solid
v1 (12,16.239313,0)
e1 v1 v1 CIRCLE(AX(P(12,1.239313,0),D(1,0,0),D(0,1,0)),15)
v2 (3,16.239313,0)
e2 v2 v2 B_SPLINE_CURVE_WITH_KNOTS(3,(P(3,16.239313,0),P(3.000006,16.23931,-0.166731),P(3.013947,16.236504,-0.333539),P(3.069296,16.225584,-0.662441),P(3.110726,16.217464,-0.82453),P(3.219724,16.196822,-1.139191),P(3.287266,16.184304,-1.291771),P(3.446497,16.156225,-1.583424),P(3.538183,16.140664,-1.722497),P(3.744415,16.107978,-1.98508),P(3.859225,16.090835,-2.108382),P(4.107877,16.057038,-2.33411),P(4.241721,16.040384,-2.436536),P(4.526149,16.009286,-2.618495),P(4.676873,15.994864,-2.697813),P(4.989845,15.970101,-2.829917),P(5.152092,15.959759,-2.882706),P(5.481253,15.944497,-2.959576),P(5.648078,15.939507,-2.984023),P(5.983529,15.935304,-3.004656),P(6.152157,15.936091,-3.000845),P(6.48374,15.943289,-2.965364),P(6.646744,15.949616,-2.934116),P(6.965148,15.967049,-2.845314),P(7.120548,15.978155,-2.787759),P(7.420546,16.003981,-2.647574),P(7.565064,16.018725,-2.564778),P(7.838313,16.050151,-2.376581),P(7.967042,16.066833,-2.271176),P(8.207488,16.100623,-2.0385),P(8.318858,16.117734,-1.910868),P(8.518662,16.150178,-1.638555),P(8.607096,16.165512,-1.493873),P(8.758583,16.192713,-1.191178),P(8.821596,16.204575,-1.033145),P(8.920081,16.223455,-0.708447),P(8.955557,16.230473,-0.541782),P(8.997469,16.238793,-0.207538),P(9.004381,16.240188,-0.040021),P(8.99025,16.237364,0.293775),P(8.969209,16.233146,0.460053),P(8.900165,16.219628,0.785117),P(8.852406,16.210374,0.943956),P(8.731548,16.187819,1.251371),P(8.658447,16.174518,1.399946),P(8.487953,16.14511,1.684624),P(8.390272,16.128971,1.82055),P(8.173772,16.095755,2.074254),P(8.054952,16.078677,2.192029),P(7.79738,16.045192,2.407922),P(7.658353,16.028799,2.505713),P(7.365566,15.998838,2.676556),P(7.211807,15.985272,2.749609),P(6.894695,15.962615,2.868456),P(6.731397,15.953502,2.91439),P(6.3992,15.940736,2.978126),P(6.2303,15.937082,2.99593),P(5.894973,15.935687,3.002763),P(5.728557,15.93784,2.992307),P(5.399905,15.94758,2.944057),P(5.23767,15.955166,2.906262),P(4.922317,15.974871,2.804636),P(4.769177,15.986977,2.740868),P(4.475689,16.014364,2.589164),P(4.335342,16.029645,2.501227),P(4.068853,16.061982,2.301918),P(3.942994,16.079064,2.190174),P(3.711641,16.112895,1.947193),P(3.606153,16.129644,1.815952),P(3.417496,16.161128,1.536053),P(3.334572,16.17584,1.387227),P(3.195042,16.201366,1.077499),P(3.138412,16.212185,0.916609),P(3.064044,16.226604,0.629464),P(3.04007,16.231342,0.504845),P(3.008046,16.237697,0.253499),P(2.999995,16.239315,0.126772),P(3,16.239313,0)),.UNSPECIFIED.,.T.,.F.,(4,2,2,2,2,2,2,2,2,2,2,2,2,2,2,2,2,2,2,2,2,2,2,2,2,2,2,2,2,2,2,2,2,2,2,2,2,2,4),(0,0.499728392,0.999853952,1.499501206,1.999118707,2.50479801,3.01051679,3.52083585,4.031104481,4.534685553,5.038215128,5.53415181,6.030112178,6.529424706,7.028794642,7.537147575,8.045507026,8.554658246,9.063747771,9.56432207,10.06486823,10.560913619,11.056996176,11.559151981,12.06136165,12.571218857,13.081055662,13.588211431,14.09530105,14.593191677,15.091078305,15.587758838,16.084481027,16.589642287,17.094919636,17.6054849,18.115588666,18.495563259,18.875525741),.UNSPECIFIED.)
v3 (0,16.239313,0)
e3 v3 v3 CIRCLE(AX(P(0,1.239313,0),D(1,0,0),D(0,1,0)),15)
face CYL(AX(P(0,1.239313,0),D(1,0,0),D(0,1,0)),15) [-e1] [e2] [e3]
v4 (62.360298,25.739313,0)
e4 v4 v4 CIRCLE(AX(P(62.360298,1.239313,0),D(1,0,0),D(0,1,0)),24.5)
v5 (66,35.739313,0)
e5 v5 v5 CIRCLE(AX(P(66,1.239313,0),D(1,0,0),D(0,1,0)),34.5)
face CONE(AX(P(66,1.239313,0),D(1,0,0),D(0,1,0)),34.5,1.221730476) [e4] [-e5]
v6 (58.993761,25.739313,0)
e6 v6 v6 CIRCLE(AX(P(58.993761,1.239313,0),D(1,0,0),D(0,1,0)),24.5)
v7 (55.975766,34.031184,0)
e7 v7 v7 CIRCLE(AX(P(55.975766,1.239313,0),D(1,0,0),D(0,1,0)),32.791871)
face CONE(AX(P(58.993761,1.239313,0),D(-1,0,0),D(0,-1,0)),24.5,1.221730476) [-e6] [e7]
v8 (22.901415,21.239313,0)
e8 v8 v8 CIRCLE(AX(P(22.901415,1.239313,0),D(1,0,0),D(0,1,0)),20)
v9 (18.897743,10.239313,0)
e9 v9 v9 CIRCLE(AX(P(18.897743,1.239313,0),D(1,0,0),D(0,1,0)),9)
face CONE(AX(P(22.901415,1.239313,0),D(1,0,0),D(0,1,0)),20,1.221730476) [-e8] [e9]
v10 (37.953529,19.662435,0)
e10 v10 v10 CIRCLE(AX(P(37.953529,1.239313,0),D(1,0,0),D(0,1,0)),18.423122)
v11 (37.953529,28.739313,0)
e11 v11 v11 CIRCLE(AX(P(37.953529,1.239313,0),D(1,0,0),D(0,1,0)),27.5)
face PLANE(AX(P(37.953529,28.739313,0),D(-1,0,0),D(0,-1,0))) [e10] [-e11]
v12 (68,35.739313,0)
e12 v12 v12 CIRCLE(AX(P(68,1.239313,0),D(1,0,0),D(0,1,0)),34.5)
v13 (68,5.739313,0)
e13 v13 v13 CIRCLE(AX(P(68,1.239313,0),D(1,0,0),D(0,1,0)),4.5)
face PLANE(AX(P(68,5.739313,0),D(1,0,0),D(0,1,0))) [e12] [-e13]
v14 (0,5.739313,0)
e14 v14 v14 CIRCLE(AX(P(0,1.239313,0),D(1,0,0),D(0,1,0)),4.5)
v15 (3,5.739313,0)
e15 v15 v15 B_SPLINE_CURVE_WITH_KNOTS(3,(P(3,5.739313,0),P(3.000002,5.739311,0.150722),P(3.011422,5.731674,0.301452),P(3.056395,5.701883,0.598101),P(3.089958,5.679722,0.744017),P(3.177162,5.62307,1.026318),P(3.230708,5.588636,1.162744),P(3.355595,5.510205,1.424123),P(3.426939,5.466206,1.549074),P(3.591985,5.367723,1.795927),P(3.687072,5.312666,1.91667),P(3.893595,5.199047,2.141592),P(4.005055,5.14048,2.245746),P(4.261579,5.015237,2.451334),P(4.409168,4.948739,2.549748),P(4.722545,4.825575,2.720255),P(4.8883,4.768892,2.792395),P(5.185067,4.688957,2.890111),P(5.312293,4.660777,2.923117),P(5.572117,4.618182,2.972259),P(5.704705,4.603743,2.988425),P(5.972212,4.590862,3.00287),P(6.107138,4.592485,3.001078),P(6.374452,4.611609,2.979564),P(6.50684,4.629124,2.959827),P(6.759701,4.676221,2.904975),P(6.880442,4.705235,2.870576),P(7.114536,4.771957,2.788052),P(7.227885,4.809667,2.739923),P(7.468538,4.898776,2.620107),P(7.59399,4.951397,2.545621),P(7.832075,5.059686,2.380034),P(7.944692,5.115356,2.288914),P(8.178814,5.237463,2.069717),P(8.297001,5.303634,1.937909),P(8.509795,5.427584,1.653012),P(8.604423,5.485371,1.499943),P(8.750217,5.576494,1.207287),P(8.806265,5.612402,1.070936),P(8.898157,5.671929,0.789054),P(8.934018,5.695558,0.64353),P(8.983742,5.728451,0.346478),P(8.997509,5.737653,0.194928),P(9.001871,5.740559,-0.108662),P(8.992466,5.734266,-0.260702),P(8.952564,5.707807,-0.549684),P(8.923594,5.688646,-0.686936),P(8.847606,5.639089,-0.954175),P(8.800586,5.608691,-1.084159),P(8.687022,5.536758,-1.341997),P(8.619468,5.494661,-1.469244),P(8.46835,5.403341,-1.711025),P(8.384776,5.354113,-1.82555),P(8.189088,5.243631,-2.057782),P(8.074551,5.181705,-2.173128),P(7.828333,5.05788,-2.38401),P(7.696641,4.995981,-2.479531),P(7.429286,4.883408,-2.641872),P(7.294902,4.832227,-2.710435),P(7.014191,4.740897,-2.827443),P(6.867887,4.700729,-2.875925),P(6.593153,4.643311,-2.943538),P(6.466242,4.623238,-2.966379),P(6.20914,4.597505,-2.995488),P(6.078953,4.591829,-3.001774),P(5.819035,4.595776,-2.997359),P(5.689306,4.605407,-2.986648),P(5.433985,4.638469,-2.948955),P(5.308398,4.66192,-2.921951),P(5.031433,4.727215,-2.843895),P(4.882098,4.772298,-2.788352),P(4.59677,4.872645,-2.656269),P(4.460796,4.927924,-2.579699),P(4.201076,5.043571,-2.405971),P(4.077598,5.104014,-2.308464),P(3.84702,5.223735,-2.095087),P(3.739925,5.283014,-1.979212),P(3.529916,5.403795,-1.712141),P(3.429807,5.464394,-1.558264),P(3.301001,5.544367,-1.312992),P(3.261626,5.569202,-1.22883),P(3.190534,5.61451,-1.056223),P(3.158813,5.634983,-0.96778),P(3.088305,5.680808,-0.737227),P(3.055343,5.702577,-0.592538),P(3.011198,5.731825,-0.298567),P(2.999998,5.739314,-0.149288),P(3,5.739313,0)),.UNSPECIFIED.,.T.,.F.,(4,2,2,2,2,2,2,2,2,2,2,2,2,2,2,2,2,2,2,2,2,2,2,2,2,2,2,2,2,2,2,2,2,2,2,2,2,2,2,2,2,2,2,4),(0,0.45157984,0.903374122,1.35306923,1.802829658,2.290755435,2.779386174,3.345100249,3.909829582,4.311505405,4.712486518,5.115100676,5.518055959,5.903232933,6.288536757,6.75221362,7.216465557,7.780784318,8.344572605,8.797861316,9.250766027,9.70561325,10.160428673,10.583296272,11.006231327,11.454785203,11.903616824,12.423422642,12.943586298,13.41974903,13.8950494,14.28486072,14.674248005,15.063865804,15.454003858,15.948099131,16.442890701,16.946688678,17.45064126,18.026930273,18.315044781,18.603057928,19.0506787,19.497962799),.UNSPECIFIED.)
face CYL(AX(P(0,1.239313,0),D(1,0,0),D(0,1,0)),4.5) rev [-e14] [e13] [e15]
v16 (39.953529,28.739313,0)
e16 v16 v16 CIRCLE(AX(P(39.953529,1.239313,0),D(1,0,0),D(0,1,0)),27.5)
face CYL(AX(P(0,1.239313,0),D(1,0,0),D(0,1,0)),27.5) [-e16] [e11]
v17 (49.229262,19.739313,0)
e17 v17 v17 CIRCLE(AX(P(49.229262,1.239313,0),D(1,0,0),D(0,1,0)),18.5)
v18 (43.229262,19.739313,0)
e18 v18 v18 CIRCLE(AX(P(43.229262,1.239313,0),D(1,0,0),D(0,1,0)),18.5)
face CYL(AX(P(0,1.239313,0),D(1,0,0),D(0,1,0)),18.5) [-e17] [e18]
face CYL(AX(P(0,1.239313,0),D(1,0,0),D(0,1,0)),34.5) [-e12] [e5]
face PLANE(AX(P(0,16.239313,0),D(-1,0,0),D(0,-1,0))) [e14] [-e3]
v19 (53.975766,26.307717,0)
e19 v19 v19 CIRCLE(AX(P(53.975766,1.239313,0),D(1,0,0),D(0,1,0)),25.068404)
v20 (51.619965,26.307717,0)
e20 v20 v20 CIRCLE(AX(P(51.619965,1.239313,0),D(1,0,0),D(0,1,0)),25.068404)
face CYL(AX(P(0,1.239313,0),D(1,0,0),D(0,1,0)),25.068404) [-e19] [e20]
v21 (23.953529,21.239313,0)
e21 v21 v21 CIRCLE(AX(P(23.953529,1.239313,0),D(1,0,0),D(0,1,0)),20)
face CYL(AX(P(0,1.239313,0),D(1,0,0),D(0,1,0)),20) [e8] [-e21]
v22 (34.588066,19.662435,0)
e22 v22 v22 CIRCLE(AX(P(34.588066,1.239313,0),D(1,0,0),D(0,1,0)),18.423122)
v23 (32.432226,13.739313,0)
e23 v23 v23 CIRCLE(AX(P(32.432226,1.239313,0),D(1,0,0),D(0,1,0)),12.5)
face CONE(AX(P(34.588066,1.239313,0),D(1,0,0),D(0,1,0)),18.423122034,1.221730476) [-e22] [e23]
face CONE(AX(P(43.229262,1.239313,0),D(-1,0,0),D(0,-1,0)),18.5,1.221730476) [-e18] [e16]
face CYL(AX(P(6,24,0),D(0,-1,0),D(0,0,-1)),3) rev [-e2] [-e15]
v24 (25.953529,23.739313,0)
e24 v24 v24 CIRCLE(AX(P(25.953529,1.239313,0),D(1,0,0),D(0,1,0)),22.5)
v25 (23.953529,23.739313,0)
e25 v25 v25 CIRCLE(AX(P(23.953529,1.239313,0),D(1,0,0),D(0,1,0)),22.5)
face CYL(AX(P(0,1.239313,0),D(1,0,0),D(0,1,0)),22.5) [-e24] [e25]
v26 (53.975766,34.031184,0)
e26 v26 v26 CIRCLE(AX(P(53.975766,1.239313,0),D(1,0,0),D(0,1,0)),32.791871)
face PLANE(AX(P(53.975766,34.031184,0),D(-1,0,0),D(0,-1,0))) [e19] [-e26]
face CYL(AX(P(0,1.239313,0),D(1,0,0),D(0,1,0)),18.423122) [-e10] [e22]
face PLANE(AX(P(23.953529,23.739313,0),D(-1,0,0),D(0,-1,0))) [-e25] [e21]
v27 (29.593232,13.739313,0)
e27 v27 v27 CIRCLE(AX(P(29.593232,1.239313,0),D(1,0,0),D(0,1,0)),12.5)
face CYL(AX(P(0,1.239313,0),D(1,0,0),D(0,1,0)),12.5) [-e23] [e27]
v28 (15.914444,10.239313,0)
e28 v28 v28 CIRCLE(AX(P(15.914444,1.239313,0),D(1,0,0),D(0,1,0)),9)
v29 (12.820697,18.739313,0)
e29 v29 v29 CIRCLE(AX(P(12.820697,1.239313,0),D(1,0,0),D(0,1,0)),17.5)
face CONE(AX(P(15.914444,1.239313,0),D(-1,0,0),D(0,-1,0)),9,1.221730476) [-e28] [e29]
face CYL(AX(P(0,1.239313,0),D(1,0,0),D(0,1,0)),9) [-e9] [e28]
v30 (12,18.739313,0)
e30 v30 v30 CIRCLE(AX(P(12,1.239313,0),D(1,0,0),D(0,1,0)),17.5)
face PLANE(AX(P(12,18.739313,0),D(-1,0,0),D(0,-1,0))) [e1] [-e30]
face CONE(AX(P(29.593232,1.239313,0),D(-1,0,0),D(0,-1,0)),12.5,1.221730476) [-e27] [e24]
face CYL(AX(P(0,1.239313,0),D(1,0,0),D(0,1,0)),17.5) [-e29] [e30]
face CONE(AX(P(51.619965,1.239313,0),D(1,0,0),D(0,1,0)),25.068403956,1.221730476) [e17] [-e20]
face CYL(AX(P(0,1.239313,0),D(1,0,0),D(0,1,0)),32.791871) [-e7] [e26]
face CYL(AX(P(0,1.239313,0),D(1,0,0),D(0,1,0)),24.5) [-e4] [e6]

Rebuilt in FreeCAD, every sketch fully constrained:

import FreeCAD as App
import Part
import Sketcher
from FreeCAD import Vector
Q = App.Units.Quantity

doc = App.newDocument("Part")
body = doc.addObject("PartDesign::Body", "Body")

sketch1 = body.newObject("Sketcher::SketchObject", "Sketch")
sketch1.AttachmentSupport = (doc.getObject("XY_Plane"), [""])
sketch1.MapMode = "FlatFace"
sketch1.addGeometry(Part.LineSegment(Vector(0, 5.739313, 0), Vector(68, 5.739313, 0)), False)
sketch1.addGeometry(Part.LineSegment(Vector(68, 5.739313, 0), Vector(68, 35.739313, 0)), False)
sketch1.addGeometry(Part.LineSegment(Vector(68, 35.739313, 0), Vector(66, 35.739313, 0)), False)
sketch1.addGeometry(Part.LineSegment(Vector(66, 35.739313, 0), Vector(62.360298, 25.739313, 0)), False)
sketch1.addGeometry(Part.LineSegment(Vector(62.360298, 25.739313, 0), Vector(58.993761, 25.739313, 0)), False)
sketch1.addGeometry(Part.LineSegment(Vector(58.993761, 25.739313, 0), Vector(55.975766, 34.031184, 0)), False)
sketch1.addGeometry(Part.LineSegment(Vector(55.975766, 34.031184, 0), Vector(53.975766, 34.031184, 0)), False)
sketch1.addGeometry(Part.LineSegment(Vector(53.975766, 34.031184, 0), Vector(53.975766, 26.307717, 0)), False)
sketch1.addGeometry(Part.LineSegment(Vector(53.975766, 26.307717, 0), Vector(51.619965, 26.307717, 0)), False)
sketch1.addGeometry(Part.LineSegment(Vector(51.619965, 26.307717, 0), Vector(49.229262, 19.739313, 0)), False)
sketch1.addGeometry(Part.LineSegment(Vector(49.229262, 19.739313, 0), Vector(43.229262, 19.739313, 0)), False)
sketch1.addGeometry(Part.LineSegment(Vector(43.229262, 19.739313, 0), Vector(39.953529, 28.739313, 0)), False)
sketch1.addGeometry(Part.LineSegment(Vector(39.953529, 28.739313, 0), Vector(37.953529, 28.739313, 0)), False)
sketch1.addGeometry(Part.LineSegment(Vector(37.953529, 28.739313, 0), Vector(37.953529, 19.662435, 0)), False)
sketch1.addGeometry(Part.LineSegment(Vector(37.953529, 19.662435, 0), Vector(34.588066, 19.662435, 0)), False)
sketch1.addGeometry(Part.LineSegment(Vector(34.588066, 19.662435, 0), Vector(32.432226, 13.739313, 0)), False)
sketch1.addGeometry(Part.LineSegment(Vector(32.432226, 13.739313, 0), Vector(29.593232, 13.739313, 0)), False)
sketch1.addGeometry(Part.LineSegment(Vector(29.593232, 13.739313, 0), Vector(25.953529, 23.739313, 0)), False)
sketch1.addGeometry(Part.LineSegment(Vector(25.953529, 23.739313, 0), Vector(23.953529, 23.739313, 0)), False)
sketch1.addGeometry(Part.LineSegment(Vector(23.953529, 23.739313, 0), Vector(23.953529, 21.239313, 0)), False)
sketch1.addGeometry(Part.LineSegment(Vector(23.953529, 21.239313, 0), Vector(22.901415, 21.239313, 0)), False)
sketch1.addGeometry(Part.LineSegment(Vector(22.901415, 21.239313, 0), Vector(18.897743, 10.239313, 0)), False)
sketch1.addGeometry(Part.LineSegment(Vector(18.897743, 10.239313, 0), Vector(15.914444, 10.239313, 0)), False)
sketch1.addGeometry(Part.LineSegment(Vector(15.914444, 10.239313, 0), Vector(12.820697, 18.739313, 0)), False)
sketch1.addGeometry(Part.LineSegment(Vector(12.820697, 18.739313, 0), Vector(12, 18.739313, 0)), False)
sketch1.addGeometry(Part.LineSegment(Vector(12, 18.739313, 0), Vector(12, 16.239313, 0)), False)
sketch1.addGeometry(Part.LineSegment(Vector(12, 16.239313, 0), Vector(0, 16.239313, 0)), False)
sketch1.addGeometry(Part.LineSegment(Vector(0, 16.239313, 0), Vector(0, 5.739313, 0)), False)
sketch1.addGeometry(Part.LineSegment(Vector(68, 1.239313, 0), Vector(0, 1.239313, 0)), True)
sketch1.addConstraint(Sketcher.Constraint("Coincident", 0, 2, 1, 1))
sketch1.addConstraint(Sketcher.Constraint("Coincident", 1, 2, 2, 1))
sketch1.addConstraint(Sketcher.Constraint("Coincident", 2, 2, 3, 1))
sketch1.addConstraint(Sketcher.Constraint("Coincident", 3, 2, 4, 1))
sketch1.addConstraint(Sketcher.Constraint("Coincident", 4, 2, 5, 1))
sketch1.addConstraint(Sketcher.Constraint("Coincident", 5, 2, 6, 1))
sketch1.addConstraint(Sketcher.Constraint("Coincident", 6, 2, 7, 1))
sketch1.addConstraint(Sketcher.Constraint("Coincident", 7, 2, 8, 1))
sketch1.addConstraint(Sketcher.Constraint("Coincident", 8, 2, 9, 1))
sketch1.addConstraint(Sketcher.Constraint("Coincident", 9, 2, 10, 1))
sketch1.addConstraint(Sketcher.Constraint("Coincident", 10, 2, 11, 1))
sketch1.addConstraint(Sketcher.Constraint("Coincident", 11, 2, 12, 1))
sketch1.addConstraint(Sketcher.Constraint("Coincident", 12, 2, 13, 1))
sketch1.addConstraint(Sketcher.Constraint("Coincident", 13, 2, 14, 1))
sketch1.addConstraint(Sketcher.Constraint("Coincident", 14, 2, 15, 1))
sketch1.addConstraint(Sketcher.Constraint("Coincident", 15, 2, 16, 1))
sketch1.addConstraint(Sketcher.Constraint("Coincident", 16, 2, 17, 1))
sketch1.addConstraint(Sketcher.Constraint("Coincident", 17, 2, 18, 1))
sketch1.addConstraint(Sketcher.Constraint("Coincident", 18, 2, 19, 1))
sketch1.addConstraint(Sketcher.Constraint("Coincident", 19, 2, 20, 1))
sketch1.addConstraint(Sketcher.Constraint("Coincident", 20, 2, 21, 1))
sketch1.addConstraint(Sketcher.Constraint("Coincident", 21, 2, 22, 1))
sketch1.addConstraint(Sketcher.Constraint("Coincident", 22, 2, 23, 1))
sketch1.addConstraint(Sketcher.Constraint("Coincident", 23, 2, 24, 1))
sketch1.addConstraint(Sketcher.Constraint("Coincident", 24, 2, 25, 1))
sketch1.addConstraint(Sketcher.Constraint("Coincident", 25, 2, 26, 1))
sketch1.addConstraint(Sketcher.Constraint("Coincident", 26, 2, 27, 1))
sketch1.addConstraint(Sketcher.Constraint("Coincident", 27, 2, 0, 1))
sketch1.addConstraint(Sketcher.Constraint("Horizontal", 0))
sketch1.addConstraint(Sketcher.Constraint("Vertical", 1))
sketch1.addConstraint(Sketcher.Constraint("Horizontal", 2))
sketch1.addConstraint(Sketcher.Constraint("Horizontal", 4))
sketch1.addConstraint(Sketcher.Constraint("Horizontal", 6))
sketch1.addConstraint(Sketcher.Constraint("Vertical", 7))
sketch1.addConstraint(Sketcher.Constraint("Horizontal", 8))
sketch1.addConstraint(Sketcher.Constraint("Horizontal", 10))
sketch1.addConstraint(Sketcher.Constraint("Horizontal", 12))
sketch1.addConstraint(Sketcher.Constraint("Vertical", 13))
sketch1.addConstraint(Sketcher.Constraint("Horizontal", 14))
sketch1.addConstraint(Sketcher.Constraint("Horizontal", 16))
sketch1.addConstraint(Sketcher.Constraint("Horizontal", 18))
sketch1.addConstraint(Sketcher.Constraint("Vertical", 19))
sketch1.addConstraint(Sketcher.Constraint("Horizontal", 20))
sketch1.addConstraint(Sketcher.Constraint("Horizontal", 22))
sketch1.addConstraint(Sketcher.Constraint("Horizontal", 24))
sketch1.addConstraint(Sketcher.Constraint("Vertical", 25))
sketch1.addConstraint(Sketcher.Constraint("Horizontal", 26))
sketch1.addConstraint(Sketcher.Constraint("Vertical", 27))
sketch1.addConstraint(Sketcher.Constraint("Horizontal", 28))
sketch1.addConstraint(Sketcher.Constraint("PointOnObject", 26, 2, -2))
sketch1.addConstraint(Sketcher.Constraint("PointOnObject", 28, 2, -2))
sketch1.addConstraint(Sketcher.Constraint("Parallel", 3, 9))
sketch1.addConstraint(Sketcher.Constraint("Parallel", 5, 11))
sketch1.addConstraint(Sketcher.Constraint("Parallel", 9, 15))
sketch1.addConstraint(Sketcher.Constraint("Parallel", 11, 17))
sketch1.addConstraint(Sketcher.Constraint("Parallel", 15, 21))
sketch1.addConstraint(Sketcher.Constraint("Parallel", 17, 23))
sketch1.addConstraint(Sketcher.Constraint("Vertical", 1, 2, 28, 1))
sketch1.addConstraint(Sketcher.Constraint("Equal", 2, 6))
sketch1.addConstraint(Sketcher.Constraint("Equal", 6, 12))
sketch1.addConstraint(Sketcher.Constraint("Equal", 12, 18))
sketch1.addConstraint(Sketcher.Constraint("Equal", 19, 25))
sketch1.addConstraint(Sketcher.Constraint("Equal", 3, 17))
sketch1.addConstraint(Sketcher.Constraint("DistanceX", 0, 1, 0, 2, 68.0))
sketch1.addConstraint(Sketcher.Constraint("DistanceX", 2, 2, 2, 1, 2.0))
sketch1.addConstraint(Sketcher.Constraint("DistanceX", 10, 2, 10, 1, 6.0))
sketch1.addConstraint(Sketcher.Constraint("DistanceX", 26, 2, 26, 1, 12.0))
sketch1.addConstraint(Sketcher.Constraint("DistanceY", 1, 1, 1, 2, 30.0))
sketch1.addConstraint(Sketcher.Constraint("Angle", 3, Q("-110 deg")))
sketch1.addConstraint(Sketcher.Constraint("Angle", 5, Q("110 deg")))
sketch1.addConstraint(Sketcher.Constraint("DistanceY", 19, 2, 19, 1, 2.5))
sketch1.addConstraint(Sketcher.Constraint("DistanceY", 27, 2, 27, 1, 10.5))
sketch1.addConstraint(Sketcher.Constraint("DistanceY", 3, 2, 2, 2, 10.0))
sketch1.addConstraint(Sketcher.Constraint("DistanceY", 9, 2, 4, 2, 6.0))
sketch1.addConstraint(Sketcher.Constraint("DistanceY", 10, 2, 11, 2, 9.0))
sketch1.addConstraint(Sketcher.Constraint("DistanceY", 15, 2, 10, 2, 6.0))
sketch1.addConstraint(Sketcher.Constraint("DistanceX", 17, 2, 13, 2, 12.0))
sketch1.addConstraint(Sketcher.Constraint("DistanceY", 21, 2, 20, 2, 11.0))
sketch1.addConstraint(Sketcher.Constraint("DistanceY", 28, 2, 26, 2, 15.0))
sketch1.addConstraint(Sketcher.Constraint("DistanceX", 8, 2, 8, 1, 2.355801))
sketch1.addConstraint(Sketcher.Constraint("DistanceX", 22, 2, 22, 1, 2.983299))
sketch1.addConstraint(Sketcher.Constraint("DistanceX", 9, 2, 4, 2, 9.764499))
sketch1.addConstraint(Sketcher.Constraint("Distance", 9, 6.989949))
sketch1.addConstraint(Sketcher.Constraint("DistanceX", 4, 2, 4, 1, 3.366537))
sketch1.addConstraint(Sketcher.Constraint("DistanceX", 14, 2, 14, 1, 3.365463))
sketch1.addConstraint(Sketcher.Constraint("DistanceX", 16, 2, 16, 1, 2.838994))
sketch1.addConstraint(Sketcher.Constraint("DistanceX", 20, 2, 20, 1, 1.052114))
sketch1.addConstraint(Sketcher.Constraint("DistanceY", -1, 1, 0, 2, 5.739313))
revolution = body.newObject("PartDesign::Revolution", "Revolution")
revolution.Profile = sketch1
revolution.ReferenceAxis = (sketch1, ["Axis0"])
revolution.Angle = 360

sketch2 = body.newObject("Sketcher::SketchObject", "Sketch001")
sketch2.AttachmentSupport = (doc.getObject("XZ_Plane"), [""])
sketch2.MapMode = "FlatFace"
sketch2.addGeometry(Part.Circle(Vector(6, 0, 0), Vector(0, 0, 1), 3), False)
sketch2.addConstraint(Sketcher.Constraint("PointOnObject", 0, 3, -1))
sketch2.addConstraint(Sketcher.Constraint("Diameter", 0, 6.0))
sketch2.addConstraint(Sketcher.Constraint("DistanceX", -1, 1, 0, 3, 6.0))
pocket1 = body.newObject("PartDesign::Pocket", "Pocket")
pocket1.Profile = sketch2
pocket1.Length = 24

doc.recompute()
